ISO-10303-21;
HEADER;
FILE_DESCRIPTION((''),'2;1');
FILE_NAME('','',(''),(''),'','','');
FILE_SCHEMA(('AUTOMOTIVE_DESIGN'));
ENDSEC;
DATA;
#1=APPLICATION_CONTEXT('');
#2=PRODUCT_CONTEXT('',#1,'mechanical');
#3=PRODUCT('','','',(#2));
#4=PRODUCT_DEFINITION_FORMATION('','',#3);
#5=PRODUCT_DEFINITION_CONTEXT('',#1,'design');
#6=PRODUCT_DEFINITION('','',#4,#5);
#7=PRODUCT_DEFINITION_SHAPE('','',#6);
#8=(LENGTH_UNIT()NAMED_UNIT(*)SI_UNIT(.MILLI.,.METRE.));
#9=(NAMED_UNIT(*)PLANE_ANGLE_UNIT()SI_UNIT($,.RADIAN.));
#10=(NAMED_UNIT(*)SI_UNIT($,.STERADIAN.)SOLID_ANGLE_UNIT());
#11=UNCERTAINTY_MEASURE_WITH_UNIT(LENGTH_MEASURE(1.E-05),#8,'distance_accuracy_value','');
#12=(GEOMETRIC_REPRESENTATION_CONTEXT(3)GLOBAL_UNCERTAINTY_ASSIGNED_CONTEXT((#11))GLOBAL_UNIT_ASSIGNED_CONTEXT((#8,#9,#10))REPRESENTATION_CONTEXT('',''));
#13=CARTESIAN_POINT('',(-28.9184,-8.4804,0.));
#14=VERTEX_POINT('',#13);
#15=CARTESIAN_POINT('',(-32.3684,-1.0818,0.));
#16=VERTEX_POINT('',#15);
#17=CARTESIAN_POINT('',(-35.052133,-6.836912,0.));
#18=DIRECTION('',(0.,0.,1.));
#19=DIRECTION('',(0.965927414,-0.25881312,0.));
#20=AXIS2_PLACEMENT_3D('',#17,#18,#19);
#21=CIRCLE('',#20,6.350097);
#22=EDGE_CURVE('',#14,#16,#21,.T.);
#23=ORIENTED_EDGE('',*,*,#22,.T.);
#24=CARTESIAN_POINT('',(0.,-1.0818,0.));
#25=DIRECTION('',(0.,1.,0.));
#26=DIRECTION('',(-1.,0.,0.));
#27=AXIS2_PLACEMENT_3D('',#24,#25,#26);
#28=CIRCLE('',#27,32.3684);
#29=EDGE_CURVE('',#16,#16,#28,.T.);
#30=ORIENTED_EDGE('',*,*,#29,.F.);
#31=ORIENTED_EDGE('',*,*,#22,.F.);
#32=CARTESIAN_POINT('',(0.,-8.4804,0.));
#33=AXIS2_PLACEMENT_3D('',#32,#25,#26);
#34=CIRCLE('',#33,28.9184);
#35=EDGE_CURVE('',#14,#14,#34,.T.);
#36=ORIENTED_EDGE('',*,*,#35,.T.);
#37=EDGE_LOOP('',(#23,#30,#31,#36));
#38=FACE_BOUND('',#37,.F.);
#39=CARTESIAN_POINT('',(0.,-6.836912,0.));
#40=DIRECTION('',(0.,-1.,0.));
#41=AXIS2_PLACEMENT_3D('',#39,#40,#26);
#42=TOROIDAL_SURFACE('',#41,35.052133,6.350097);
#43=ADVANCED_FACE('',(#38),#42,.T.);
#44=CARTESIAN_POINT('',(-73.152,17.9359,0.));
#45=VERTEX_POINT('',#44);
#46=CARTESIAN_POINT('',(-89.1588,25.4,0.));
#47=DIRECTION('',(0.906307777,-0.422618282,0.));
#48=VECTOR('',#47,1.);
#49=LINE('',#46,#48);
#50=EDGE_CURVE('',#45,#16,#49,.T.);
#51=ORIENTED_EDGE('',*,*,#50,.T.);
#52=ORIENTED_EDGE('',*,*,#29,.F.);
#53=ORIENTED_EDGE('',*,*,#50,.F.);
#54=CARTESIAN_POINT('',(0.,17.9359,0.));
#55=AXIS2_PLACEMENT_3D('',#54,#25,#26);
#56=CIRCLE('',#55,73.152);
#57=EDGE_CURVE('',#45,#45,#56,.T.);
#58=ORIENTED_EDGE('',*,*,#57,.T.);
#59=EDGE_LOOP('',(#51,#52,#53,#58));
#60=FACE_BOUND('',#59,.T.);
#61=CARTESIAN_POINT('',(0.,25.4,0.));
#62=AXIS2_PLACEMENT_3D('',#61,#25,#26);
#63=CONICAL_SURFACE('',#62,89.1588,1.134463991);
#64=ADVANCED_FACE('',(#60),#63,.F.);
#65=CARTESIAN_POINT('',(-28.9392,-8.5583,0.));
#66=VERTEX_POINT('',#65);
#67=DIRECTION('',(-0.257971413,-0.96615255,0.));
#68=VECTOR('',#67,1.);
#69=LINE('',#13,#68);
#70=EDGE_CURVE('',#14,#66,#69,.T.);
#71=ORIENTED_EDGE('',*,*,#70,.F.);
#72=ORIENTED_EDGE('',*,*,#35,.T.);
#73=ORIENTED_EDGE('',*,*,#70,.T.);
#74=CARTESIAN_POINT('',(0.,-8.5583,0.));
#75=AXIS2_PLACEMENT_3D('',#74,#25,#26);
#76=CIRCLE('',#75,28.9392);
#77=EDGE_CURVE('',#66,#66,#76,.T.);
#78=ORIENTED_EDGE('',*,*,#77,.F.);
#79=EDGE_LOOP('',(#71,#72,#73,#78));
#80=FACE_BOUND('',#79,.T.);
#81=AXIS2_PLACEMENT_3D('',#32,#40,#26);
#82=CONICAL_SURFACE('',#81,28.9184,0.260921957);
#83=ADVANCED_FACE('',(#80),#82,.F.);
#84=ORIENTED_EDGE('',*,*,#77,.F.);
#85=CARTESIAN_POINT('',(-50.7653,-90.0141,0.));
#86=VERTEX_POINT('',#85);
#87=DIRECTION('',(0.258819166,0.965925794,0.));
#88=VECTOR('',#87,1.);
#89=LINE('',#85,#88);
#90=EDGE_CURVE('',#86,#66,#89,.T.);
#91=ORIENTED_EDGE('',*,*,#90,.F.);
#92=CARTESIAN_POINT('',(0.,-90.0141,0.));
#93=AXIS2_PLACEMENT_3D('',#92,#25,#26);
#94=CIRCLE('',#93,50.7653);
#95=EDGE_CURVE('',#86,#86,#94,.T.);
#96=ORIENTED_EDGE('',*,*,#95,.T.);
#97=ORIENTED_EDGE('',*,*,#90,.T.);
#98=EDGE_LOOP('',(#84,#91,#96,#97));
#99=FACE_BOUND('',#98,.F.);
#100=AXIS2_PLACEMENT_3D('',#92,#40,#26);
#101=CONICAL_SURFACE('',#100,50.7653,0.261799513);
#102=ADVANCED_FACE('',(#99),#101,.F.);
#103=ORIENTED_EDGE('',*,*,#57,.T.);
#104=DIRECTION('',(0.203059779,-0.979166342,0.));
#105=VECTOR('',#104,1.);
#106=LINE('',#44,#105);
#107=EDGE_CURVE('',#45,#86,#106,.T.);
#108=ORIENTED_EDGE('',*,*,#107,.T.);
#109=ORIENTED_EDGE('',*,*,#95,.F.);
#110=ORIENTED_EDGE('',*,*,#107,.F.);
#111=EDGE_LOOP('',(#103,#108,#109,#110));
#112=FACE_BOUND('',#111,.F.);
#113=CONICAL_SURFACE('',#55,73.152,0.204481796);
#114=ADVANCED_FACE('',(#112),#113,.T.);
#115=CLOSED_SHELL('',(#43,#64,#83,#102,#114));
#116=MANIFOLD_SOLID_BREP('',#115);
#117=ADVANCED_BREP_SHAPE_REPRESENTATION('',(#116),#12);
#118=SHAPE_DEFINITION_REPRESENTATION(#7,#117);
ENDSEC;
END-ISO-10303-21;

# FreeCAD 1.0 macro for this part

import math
import FreeCAD as App
import Part
import Sketcher
Q = App.Units.Quantity

doc = App.newDocument("Part")
body = doc.addObject("PartDesign::Body", "Body")

sketch1 = doc.addObject("Sketcher::SketchObject", "Sketch")
body.addObject(sketch1)
sketch1.AttachmentSupport = (doc.XY_Plane, [""])
sketch1.MapMode = "FlatFace"
sketch1.addGeometry([
    Part.LineSegment(App.Vector(-32.3684, -1.0818, 0), App.Vector(-73.151998, 17.935905, 0)),
    Part.LineSegment(App.Vector(-73.152, 17.9359, 0), App.Vector(-50.7653, -90.0141, 0)),
    Part.LineSegment(App.Vector(-50.7653, -90.0141, 0), App.Vector(-28.939268, -8.558282, 0)),
    Part.LineSegment(App.Vector(-28.9392, -8.5583, 0), App.Vector(-28.9184, -8.4804, 0)),
    Part.ArcOfCircle(Part.Circle(App.Vector(-35.052, -6.8369, 0), App.Vector(0, 0, 1), 6.349972), math.radians(-15.00006), math.radians(65.000386)),
], False)
sketch1.addConstraint([
    Sketcher.Constraint("Coincident", 0, 2, 1, 1),
    Sketcher.Constraint("Coincident", 1, 2, 2, 1),
    Sketcher.Constraint("Coincident", 2, 2, 3, 1),
    Sketcher.Constraint("Coincident", 3, 2, 4, 1),
    Sketcher.Constraint("Tangent", 4, 2, 0, 1),
    Sketcher.Constraint("Radius", 4, Q("0.25 in")),
    Sketcher.Constraint("DistanceY", 1, 2, 0, 2, Q("4.25 in")),
    Sketcher.Constraint("Angle", 0, Q("155 deg")),
    Sketcher.Constraint("Angle", 2, Q("75 deg")),
    Sketcher.Constraint("DistanceX", 0, 2, 4, 3, Q("1.5 in")),
    Sketcher.Constraint("DistanceX", 4, 3, -1, 1, Q("1.38 in")),
    Sketcher.Constraint("Angle", 3, Q("75.0503 deg")),
    Sketcher.Constraint("DistanceY", 1, 2, 3, 2, Q("3.21 in")),
    Sketcher.Constraint("DistanceX", 4, 2, 2, 2, Q("0.135 in")),
    Sketcher.Constraint("DistanceY", 4, 2, -1, 1, Q("0.0426 in")),
])
revolution = doc.addObject("PartDesign::Revolution", "Revolution")
body.addObject(revolution)
revolution.Profile = sketch1
revolution.ReferenceAxis = (sketch1, ["V_Axis"])
revolution.Angle = 360

doc.recompute()
